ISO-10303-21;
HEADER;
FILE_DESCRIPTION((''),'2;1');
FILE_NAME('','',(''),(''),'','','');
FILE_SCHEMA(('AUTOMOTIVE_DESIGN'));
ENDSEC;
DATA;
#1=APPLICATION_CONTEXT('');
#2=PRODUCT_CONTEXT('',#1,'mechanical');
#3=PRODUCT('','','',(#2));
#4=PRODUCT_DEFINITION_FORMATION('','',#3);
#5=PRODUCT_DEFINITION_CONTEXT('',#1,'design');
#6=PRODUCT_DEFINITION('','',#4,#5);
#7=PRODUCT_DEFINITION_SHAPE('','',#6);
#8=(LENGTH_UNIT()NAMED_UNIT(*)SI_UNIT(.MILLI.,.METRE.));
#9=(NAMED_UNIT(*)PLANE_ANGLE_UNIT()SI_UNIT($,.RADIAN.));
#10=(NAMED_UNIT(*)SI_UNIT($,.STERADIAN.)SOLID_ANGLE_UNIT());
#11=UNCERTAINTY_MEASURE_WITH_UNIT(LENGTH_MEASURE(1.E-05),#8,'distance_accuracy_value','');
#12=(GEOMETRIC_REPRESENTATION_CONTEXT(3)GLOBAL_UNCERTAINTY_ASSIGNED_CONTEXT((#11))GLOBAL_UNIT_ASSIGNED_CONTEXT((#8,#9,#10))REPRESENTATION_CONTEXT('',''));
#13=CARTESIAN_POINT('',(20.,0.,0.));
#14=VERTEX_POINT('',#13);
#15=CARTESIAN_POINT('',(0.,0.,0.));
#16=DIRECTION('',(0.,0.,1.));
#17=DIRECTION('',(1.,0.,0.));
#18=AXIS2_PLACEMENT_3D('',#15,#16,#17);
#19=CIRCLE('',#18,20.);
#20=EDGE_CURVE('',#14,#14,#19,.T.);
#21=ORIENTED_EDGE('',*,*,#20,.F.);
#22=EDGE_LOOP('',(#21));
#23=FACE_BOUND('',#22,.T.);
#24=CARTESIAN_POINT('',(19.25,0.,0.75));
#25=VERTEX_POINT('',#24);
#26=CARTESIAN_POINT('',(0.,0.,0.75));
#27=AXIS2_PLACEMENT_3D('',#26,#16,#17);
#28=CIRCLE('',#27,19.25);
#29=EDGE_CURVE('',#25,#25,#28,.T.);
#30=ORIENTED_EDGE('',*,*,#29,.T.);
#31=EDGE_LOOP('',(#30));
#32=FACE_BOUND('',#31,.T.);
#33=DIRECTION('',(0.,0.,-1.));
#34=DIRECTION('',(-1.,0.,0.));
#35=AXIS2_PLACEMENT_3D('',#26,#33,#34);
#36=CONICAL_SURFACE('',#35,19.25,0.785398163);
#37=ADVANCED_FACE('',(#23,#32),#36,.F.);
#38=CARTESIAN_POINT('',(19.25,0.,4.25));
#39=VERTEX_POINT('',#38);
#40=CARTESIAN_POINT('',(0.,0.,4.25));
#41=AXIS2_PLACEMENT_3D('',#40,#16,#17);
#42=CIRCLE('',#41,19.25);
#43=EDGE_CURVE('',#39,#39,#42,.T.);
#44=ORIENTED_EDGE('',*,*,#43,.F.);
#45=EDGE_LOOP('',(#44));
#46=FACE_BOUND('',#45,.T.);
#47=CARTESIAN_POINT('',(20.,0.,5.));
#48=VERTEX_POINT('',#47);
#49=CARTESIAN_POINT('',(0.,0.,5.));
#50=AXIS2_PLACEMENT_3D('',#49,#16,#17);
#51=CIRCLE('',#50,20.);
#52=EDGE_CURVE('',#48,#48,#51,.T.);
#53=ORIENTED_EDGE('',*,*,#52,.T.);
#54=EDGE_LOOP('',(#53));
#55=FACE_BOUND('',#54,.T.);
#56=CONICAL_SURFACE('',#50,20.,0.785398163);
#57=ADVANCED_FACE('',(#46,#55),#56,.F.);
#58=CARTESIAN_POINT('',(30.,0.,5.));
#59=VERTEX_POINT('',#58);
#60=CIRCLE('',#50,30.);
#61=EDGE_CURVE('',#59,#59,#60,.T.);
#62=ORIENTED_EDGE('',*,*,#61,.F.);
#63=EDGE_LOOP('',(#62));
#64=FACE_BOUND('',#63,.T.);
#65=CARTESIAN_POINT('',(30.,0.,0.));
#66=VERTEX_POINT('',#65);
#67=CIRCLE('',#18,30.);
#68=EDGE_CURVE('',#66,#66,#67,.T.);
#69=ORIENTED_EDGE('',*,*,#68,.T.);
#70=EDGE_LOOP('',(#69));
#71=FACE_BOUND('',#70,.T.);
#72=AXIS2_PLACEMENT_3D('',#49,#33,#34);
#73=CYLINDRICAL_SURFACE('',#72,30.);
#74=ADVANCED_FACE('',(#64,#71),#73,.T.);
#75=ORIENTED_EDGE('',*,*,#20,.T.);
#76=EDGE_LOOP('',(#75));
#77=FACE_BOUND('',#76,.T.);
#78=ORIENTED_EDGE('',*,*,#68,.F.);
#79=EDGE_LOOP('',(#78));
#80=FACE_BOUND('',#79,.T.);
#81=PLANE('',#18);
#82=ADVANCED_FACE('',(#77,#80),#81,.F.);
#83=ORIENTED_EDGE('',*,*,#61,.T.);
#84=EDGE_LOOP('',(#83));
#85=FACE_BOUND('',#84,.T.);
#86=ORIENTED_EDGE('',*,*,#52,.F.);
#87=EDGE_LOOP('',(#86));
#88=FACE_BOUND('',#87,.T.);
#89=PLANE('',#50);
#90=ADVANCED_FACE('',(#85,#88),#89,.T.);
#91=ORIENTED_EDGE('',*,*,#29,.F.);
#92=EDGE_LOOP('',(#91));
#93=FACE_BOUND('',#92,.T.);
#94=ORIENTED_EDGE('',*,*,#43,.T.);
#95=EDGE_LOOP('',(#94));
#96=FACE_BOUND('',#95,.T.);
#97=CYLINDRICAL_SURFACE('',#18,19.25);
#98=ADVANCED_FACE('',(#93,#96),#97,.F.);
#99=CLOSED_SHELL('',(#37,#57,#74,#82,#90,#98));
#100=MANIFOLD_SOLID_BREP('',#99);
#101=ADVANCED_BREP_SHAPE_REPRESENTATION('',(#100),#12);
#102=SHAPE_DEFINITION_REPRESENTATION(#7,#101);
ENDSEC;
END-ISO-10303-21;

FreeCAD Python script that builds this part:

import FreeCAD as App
import Part
import Sketcher
from FreeCAD import Vector
Q = App.Units.Quantity


def add_polygon(sketch, points):
    """Adds a closed chain of lines whose ends are joined by coincident constraints."""
    first, n = sketch.GeometryCount, len(points)
    for a, b in zip(points, points[1:] + points[:1]):
        sketch.addGeometry(Part.LineSegment(App.Vector(*a, 0), App.Vector(*b, 0)), False)
    for i in range(n):
        sketch.addConstraint(Sketcher.Constraint("Coincident", first + i, 2, first + (i + 1) % n, 1))

doc = App.newDocument("Part")
params = doc.addObject("Spreadsheet::Sheet", "Params")
for row, (alias, value) in enumerate([
    ("sketch1_diameter", "60 mm"),
    ("pad1_length", "5 mm"),
    ("sketch2_diameter", "38.5 mm"),
    ("sketch3_width", "0.75 mm"),
    ("groove_angle", "360 deg"),
], start=1):
    params.set(f"A{row}", alias)
    params.set(f"B{row}", "=" + value)
    params.setAlias(f"B{row}", alias)

body = doc.addObject("PartDesign::Body", "Body")

sketch1 = doc.addObject("Sketcher::SketchObject", "Sketch")
body.addObject(sketch1)
sketch1.AttachmentSupport = (doc.XY_Plane, [""])
sketch1.MapMode = "FlatFace"
sketch1.addGeometry(Part.Circle(Vector(0, 0, 0), Vector(0, 0, 1), 30), False)
sketch1.addConstraint(Sketcher.Constraint("Coincident", 0, 3, -1, 1))
sketch1.addConstraint(Sketcher.Constraint("Diameter", 0, Q("60 mm")))
sketch1.setExpression("Constraints[1]", "Params.sketch1_diameter")
pad1 = doc.addObject("PartDesign::Pad", "Pad")
body.addObject(pad1)
pad1.Profile = sketch1
pad1.setExpression("Length", "Params.pad1_length")

sketch2 = doc.addObject("Sketcher::SketchObject", "Sketch001")
body.addObject(sketch2)
sketch2.AttachmentSupport = (doc.XY_Plane, [""])
sketch2.MapMode = "FlatFace"
sketch2.AttachmentOffset = App.Placement(Vector(0, 0, 5), App.Rotation())
sketch2.addGeometry(Part.Circle(Vector(0, 0, 0), Vector(0, 0, 1), 19), False)
sketch2.addConstraint(Sketcher.Constraint("Coincident", 0, 3, -1, 1))
sketch2.addConstraint(Sketcher.Constraint("Diameter", 0, Q("38.5 mm")))
sketch2.setExpression("Constraints[1]", "Params.sketch2_diameter")
pocket1 = doc.addObject("PartDesign::Pocket", "Pocket")
body.addObject(pocket1)
pocket1.Profile = sketch2
pocket1.Type = "ThroughAll"

sketch3 = doc.addObject("Sketcher::SketchObject", "Sketch002")
body.addObject(sketch3)
sketch3.AttachmentSupport = (doc.XZ_Plane, [""])
sketch3.MapMode = "FlatFace"
add_polygon(sketch3, [(19.2, 5), (20, 5), (19.2, 4.2)])
add_polygon(sketch3, [(20, 0), (19.2, 0), (19.2, 0.8)])
sketch3.addConstraint(Sketcher.Constraint("Horizontal", 0))
sketch3.addConstraint(Sketcher.Constraint("Vertical", 2))
sketch3.addConstraint(Sketcher.Constraint("Horizontal", 3))
sketch3.addConstraint(Sketcher.Constraint("Vertical", 4))
sketch3.addConstraint(Sketcher.Constraint("PointOnObject", 3, 2, -1))
sketch3.addConstraint(Sketcher.Constraint("Perpendicular", 1, 5))
sketch3.addConstraint(Sketcher.Constraint("Vertical", 2, 2, 3, 2))
sketch3.addConstraint(Sketcher.Constraint("Vertical", 0, 2, 5, 2))
sketch3.addConstraint(Sketcher.Constraint("Equal", 3, 2))
sketch3.addConstraint(Sketcher.Constraint("DistanceX", -1, 1, 0, 2, Q("20 mm")))
sketch3.addConstraint(Sketcher.Constraint("DistanceY", -1, 1, 0, 2, Q("5 mm")))
sketch3.addConstraint(Sketcher.Constraint("DistanceX", 0, 1, 0, 2, Q("0.75 mm")))
sketch3.setExpression("Constraints[17]", "Params.sketch3_width")
groove = doc.addObject("PartDesign::Groove", "Groove")
body.addObject(groove)
groove.Profile = sketch3
groove.ReferenceAxis = (sketch3, ["V_Axis"])
groove.setExpression("Angle", "Params.groove_angle")

doc.recompute()
